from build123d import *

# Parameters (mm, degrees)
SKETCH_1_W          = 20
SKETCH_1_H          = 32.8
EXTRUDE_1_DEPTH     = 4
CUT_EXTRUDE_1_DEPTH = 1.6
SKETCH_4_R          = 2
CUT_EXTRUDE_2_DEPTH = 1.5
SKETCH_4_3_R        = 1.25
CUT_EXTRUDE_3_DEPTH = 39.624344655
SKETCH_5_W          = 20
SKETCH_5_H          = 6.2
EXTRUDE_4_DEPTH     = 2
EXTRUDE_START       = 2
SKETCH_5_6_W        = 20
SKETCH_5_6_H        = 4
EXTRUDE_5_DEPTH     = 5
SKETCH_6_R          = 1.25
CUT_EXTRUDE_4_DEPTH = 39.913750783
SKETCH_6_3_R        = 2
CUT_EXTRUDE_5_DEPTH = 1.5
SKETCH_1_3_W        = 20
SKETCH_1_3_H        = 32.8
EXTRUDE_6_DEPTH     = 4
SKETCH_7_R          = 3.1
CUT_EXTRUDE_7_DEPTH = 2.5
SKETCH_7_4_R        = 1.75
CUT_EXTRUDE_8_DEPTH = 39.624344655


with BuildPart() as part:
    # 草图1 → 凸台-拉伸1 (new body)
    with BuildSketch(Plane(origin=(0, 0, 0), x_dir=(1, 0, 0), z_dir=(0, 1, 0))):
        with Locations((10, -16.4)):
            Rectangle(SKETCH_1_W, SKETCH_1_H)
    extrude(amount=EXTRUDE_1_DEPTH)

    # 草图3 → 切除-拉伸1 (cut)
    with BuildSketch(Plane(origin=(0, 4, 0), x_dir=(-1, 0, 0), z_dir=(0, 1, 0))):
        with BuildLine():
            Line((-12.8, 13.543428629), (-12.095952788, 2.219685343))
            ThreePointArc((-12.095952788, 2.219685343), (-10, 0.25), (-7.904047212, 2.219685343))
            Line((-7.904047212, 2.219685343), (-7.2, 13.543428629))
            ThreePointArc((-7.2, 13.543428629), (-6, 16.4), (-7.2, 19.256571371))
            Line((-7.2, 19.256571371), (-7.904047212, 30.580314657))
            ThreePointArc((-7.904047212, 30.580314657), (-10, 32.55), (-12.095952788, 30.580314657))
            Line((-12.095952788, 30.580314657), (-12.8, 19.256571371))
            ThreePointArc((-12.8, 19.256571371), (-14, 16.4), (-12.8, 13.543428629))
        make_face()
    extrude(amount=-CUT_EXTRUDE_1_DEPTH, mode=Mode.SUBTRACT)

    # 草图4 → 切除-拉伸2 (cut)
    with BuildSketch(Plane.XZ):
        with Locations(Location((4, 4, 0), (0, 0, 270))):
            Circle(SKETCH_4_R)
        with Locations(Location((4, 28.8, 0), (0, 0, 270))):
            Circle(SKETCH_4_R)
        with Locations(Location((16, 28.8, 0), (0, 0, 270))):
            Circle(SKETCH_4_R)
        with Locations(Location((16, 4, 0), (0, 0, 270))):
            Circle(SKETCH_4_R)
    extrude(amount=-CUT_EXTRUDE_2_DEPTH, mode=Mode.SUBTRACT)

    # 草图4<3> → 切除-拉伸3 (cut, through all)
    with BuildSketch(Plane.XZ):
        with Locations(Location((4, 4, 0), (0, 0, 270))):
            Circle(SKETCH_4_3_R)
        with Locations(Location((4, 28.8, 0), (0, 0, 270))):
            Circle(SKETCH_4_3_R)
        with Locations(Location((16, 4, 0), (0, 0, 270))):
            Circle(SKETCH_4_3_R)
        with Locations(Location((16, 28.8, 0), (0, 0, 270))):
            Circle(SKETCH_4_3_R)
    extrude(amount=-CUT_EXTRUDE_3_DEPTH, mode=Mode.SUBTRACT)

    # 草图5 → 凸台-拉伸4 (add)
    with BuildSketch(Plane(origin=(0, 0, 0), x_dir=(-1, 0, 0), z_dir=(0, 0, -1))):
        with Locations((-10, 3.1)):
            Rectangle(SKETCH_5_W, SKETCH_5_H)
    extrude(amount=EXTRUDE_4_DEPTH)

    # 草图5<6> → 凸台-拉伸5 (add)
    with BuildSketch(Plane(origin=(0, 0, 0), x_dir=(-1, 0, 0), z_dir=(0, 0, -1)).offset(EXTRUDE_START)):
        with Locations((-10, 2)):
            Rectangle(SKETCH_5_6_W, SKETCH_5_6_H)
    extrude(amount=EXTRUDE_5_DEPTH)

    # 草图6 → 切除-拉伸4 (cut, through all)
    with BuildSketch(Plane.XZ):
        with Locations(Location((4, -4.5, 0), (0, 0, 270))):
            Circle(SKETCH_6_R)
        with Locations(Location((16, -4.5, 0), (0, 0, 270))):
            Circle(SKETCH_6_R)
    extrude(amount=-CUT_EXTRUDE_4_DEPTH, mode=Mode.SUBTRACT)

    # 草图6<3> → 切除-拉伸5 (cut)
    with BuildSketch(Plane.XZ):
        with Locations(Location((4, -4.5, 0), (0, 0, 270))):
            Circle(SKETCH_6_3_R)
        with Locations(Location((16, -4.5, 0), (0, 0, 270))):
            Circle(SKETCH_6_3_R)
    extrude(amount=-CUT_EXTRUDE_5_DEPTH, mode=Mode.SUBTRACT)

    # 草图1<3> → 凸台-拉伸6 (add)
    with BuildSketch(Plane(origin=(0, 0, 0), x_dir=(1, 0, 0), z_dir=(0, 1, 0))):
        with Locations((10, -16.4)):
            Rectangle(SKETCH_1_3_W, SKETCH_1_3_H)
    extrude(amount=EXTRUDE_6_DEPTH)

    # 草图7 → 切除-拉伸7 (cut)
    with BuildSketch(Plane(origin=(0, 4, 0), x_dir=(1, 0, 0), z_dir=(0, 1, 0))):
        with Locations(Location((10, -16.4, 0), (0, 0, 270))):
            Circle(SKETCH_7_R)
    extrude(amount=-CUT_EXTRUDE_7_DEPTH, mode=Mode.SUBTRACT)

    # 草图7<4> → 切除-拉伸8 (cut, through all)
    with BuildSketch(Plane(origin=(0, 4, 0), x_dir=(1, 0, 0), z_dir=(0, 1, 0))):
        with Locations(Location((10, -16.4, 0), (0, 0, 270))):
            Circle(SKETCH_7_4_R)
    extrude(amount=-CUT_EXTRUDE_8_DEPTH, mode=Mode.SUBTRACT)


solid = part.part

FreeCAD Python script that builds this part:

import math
import FreeCAD as App
import Part
import Sketcher

doc = App.newDocument("Part")
body = doc.addObject("PartDesign::Body", "Body")

# Sketch on XZ plane
sketch1 = doc.addObject("Sketcher::SketchObject", "Sketch")
body.addObject(sketch1)
sketch1.AttachmentSupport = (doc.XZ_Plane, [""])
sketch1.MapMode = "FlatFace"
sketch1.addGeometry([
    Part.LineSegment(App.Vector(0, 0, 0), App.Vector(0, 32.8, 0)),
    Part.LineSegment(App.Vector(0, 32.8, 0), App.Vector(20, 32.8, 0)),
    Part.LineSegment(App.Vector(20, 32.8, 0), App.Vector(20, 0, 0)),
    Part.LineSegment(App.Vector(20, 0, 0), App.Vector(0, 0, 0)),
], False)
sketch1.addConstraint([
    Sketcher.Constraint("Coincident", 0, 2, 1, 1),
    Sketcher.Constraint("Coincident", 1, 2, 2, 1),
    Sketcher.Constraint("Coincident", 2, 2, 3, 1),
    Sketcher.Constraint("Coincident", 3, 2, 0, 1),
    Sketcher.Constraint("Vertical", 0),
    Sketcher.Constraint("Horizontal", 1),
    Sketcher.Constraint("Vertical", 2),
    Sketcher.Constraint("Horizontal", 3),
    Sketcher.Constraint("Coincident", 3, 2, -1, 1),
    Sketcher.Constraint("DistanceX", 1, 1, 1, 2, 20.0),
    Sketcher.Constraint("DistanceY", 0, 1, 0, 2, 32.8),
])
pad1 = doc.addObject("PartDesign::Pad", "Pad")
body.addObject(pad1)
pad1.Profile = sketch1
pad1.Length = 4
pad1.Reversed = True

# Sketch on XZ plane
sketch2 = doc.addObject("Sketcher::SketchObject", "Sketch001")
body.addObject(sketch2)
sketch2.AttachmentSupport = (doc.XZ_Plane, [""])
sketch2.MapMode = "FlatFace"
sketch2.AttachmentOffset = App.Placement(App.Vector(0, 0, -4), App.Rotation())
sketch2.addGeometry([
    Part.LineSegment(App.Vector(12.8, 13.543429, 0), App.Vector(12.095953, 2.219685, 0)),  # 0
    Part.ArcOfCircle(Part.Circle(App.Vector(10, 2.35, 0), App.Vector(0, 0, 1), 2.1), math.radians(-176.442248), math.radians(-3.557752)),  # 1
    Part.LineSegment(App.Vector(7.904047, 2.219685, 0), App.Vector(7.2, 13.543429, 0)),  # 2
    Part.ArcOfCircle(Part.Circle(App.Vector(10, 16.4, 0), App.Vector(0, 0, 1), 4), math.radians(134.427004), math.radians(225.572996)),  # 3
    Part.LineSegment(App.Vector(7.2, 19.256571, 0), App.Vector(7.904047, 30.580315, 0)),  # 4
    Part.ArcOfCircle(Part.Circle(App.Vector(10, 30.45, 0), App.Vector(0, 0, 1), 2.1), math.radians(3.557752), math.radians(176.442248)),  # 5
    Part.LineSegment(App.Vector(12.095953, 30.580315, 0), App.Vector(12.8, 19.256571, 0)),  # 6
    Part.ArcOfCircle(Part.Circle(App.Vector(10, 16.4, 0), App.Vector(0, 0, 1), 4), math.radians(-45.572996), math.radians(45.572996)),  # 7
], False)
sketch2.addConstraint([
    Sketcher.Constraint("Tangent", 0, 2, 1, 2),
    Sketcher.Constraint("Tangent", 1, 1, 2, 1),
    Sketcher.Constraint("Coincident", 2, 2, 3, 2),
    Sketcher.Constraint("Coincident", 3, 1, 4, 1),
    Sketcher.Constraint("Tangent", 4, 2, 5, 2),
    Sketcher.Constraint("Tangent", 5, 1, 6, 1),
    Sketcher.Constraint("Coincident", 6, 2, 7, 2),
    Sketcher.Constraint("Coincident", 7, 1, 0, 1),
    Sketcher.Constraint("Coincident", 7, 3, 3, 3),
    Sketcher.Constraint("Equal", 1, 5),
    Sketcher.Constraint("Equal", 3, 7),
    Sketcher.Constraint("Parallel", 0, 4),
    Sketcher.Constraint("Parallel", 2, 6),
    Sketcher.Constraint("Horizontal", 0, 2, 1, 1),
    Sketcher.Constraint("Horizontal", 3, 1, 6, 2),
    Sketcher.Constraint("Horizontal", 2, 2, 7, 1),
    Sketcher.Constraint("Vertical", 2, 2, 3, 1),
    Sketcher.Constraint("Radius", 3, 4.0),
    Sketcher.Constraint("Radius", 1, 2.1),
    Sketcher.Constraint("DistanceX", -1, 1, 1, 3, 10.0),
    Sketcher.Constraint("DistanceY", -1, 1, 3, 3, 16.4),
    Sketcher.Constraint("DistanceX", -1, 1, 2, 2, 7.2),
    Sketcher.Constraint("DistanceY", 1, 3, 5, 3, 28.1),
])
pocket1 = doc.addObject("PartDesign::Pocket", "Pocket")
body.addObject(pocket1)
pocket1.Profile = sketch2
pocket1.Length = 1.6
pocket1.Reversed = True

# Sketch on XZ plane
sketch3 = doc.addObject("Sketcher::SketchObject", "Sketch002")
body.addObject(sketch3)
sketch3.AttachmentSupport = (doc.XZ_Plane, [""])
sketch3.MapMode = "FlatFace"
sketch3.addGeometry([
    Part.Circle(App.Vector(4, 4, 0), App.Vector(0, 0, 1), 2),
    Part.Circle(App.Vector(4, 28.8, 0), App.Vector(0, 0, 1), 2),
    Part.Circle(App.Vector(16, 28.8, 0), App.Vector(0, 0, 1), 2),
    Part.Circle(App.Vector(16, 4, 0), App.Vector(0, 0, 1), 2),
], False)
sketch3.addConstraint([
    Sketcher.Constraint("Equal", 0, 1),
    Sketcher.Constraint("Equal", 1, 2),
    Sketcher.Constraint("Equal", 2, 3),
    Sketcher.Constraint("Horizontal", 1, 3, 2, 3),
    Sketcher.Constraint("Horizontal", 0, 3, 3, 3),
    Sketcher.Constraint("Vertical", 0, 3, 1, 3),
    Sketcher.Constraint("Vertical", 2, 3, 3, 3),
    Sketcher.Constraint("Diameter", 0, 4.0),
    Sketcher.Constraint("DistanceX", -1, 1, 0, 3, 4.0),
    Sketcher.Constraint("DistanceY", -1, 1, 0, 3, 4.0),
    Sketcher.Constraint("DistanceX", -1, 1, 2, 3, 16.0),
    Sketcher.Constraint("DistanceY", -1, 1, 1, 3, 28.8),
])
pocket2 = doc.addObject("PartDesign::Pocket", "Pocket001")
body.addObject(pocket2)
pocket2.Profile = sketch3
pocket2.Length = 1.5

# Sketch on XZ plane
sketch4 = doc.addObject("Sketcher::SketchObject", "Sketch003")
body.addObject(sketch4)
sketch4.AttachmentSupport = (doc.XZ_Plane, [""])
sketch4.MapMode = "FlatFace"
sketch4.addGeometry([
    Part.Circle(App.Vector(4, 4, 0), App.Vector(0, 0, 1), 1.25),
    Part.Circle(App.Vector(4, 28.8, 0), App.Vector(0, 0, 1), 1.25),
    Part.Circle(App.Vector(16, 4, 0), App.Vector(0, 0, 1), 1.25),
    Part.Circle(App.Vector(16, 28.8, 0), App.Vector(0, 0, 1), 1.25),
], False)
sketch4.addConstraint([
    Sketcher.Constraint("Equal", 0, 1),
    Sketcher.Constraint("Equal", 1, 2),
    Sketcher.Constraint("Equal", 2, 3),
    Sketcher.Constraint("Horizontal", 0, 3, 2, 3),
    Sketcher.Constraint("Horizontal", 1, 3, 3, 3),
    Sketcher.Constraint("Vertical", 0, 3, 1, 3),
    Sketcher.Constraint("Vertical", 2, 3, 3, 3),
    Sketcher.Constraint("Diameter", 0, 2.5),
    Sketcher.Constraint("DistanceX", -1, 1, 0, 3, 4.0),
    Sketcher.Constraint("DistanceY", -1, 1, 0, 3, 4.0),
    Sketcher.Constraint("DistanceX", -1, 1, 2, 3, 16.0),
    Sketcher.Constraint("DistanceY", -1, 1, 1, 3, 28.8),
])
pocket3 = doc.addObject("PartDesign::Pocket", "Pocket002")
body.addObject(pocket3)
pocket3.Profile = sketch4
pocket3.Type = "ThroughAll"

# Sketch on XY plane
sketch5 = doc.addObject("Sketcher::SketchObject", "Sketch004")
body.addObject(sketch5)
sketch5.AttachmentSupport = (doc.XY_Plane, [""])
sketch5.MapMode = "FlatFace"
sketch5.addGeometry([
    Part.LineSegment(App.Vector(20, 6.2, 0), App.Vector(20, 0, 0)),
    Part.LineSegment(App.Vector(20, 0, 0), App.Vector(0, 0, 0)),
    Part.LineSegment(App.Vector(0, 0, 0), App.Vector(0, 6.2, 0)),
    Part.LineSegment(App.Vector(0, 6.2, 0), App.Vector(20, 6.2, 0)),
], False)
sketch5.addConstraint([
    Sketcher.Constraint("Coincident", 0, 2, 1, 1),
    Sketcher.Constraint("Coincident", 1, 2, 2, 1),
    Sketcher.Constraint("Coincident", 2, 2, 3, 1),
    Sketcher.Constraint("Coincident", 3, 2, 0, 1),
    Sketcher.Constraint("Vertical", 0),
    Sketcher.Constraint("Horizontal", 1),
    Sketcher.Constraint("Vertical", 2),
    Sketcher.Constraint("Horizontal", 3),
    Sketcher.Constraint("Coincident", 1, 2, -1, 1),
    Sketcher.Constraint("DistanceX", 1, 2, 1, 1, 20.0),
    Sketcher.Constraint("DistanceY", 0, 2, 0, 1, 6.2),
])
pad2 = doc.addObject("PartDesign::Pad", "Pad001")
body.addObject(pad2)
pad2.Profile = sketch5
pad2.Length = 2
pad2.Reversed = True

# Sketch on XY plane
sketch6 = doc.addObject("Sketcher::SketchObject", "Sketch005")
body.addObject(sketch6)
sketch6.AttachmentSupport = (doc.XY_Plane, [""])
sketch6.MapMode = "FlatFace"
sketch6.AttachmentOffset = App.Placement(App.Vector(0, 0, -2), App.Rotation())
sketch6.addGeometry([
    Part.LineSegment(App.Vector(20, 4, 0), App.Vector(20, 0, 0)),
    Part.LineSegment(App.Vector(20, 0, 0), App.Vector(0, 0, 0)),
    Part.LineSegment(App.Vector(0, 0, 0), App.Vector(0, 4, 0)),
    Part.LineSegment(App.Vector(0, 4, 0), App.Vector(20, 4, 0)),
], False)
sketch6.addConstraint([
    Sketcher.Constraint("Coincident", 0, 2, 1, 1),
    Sketcher.Constraint("Coincident", 1, 2, 2, 1),
    Sketcher.Constraint("Coincident", 2, 2, 3, 1),
    Sketcher.Constraint("Coincident", 3, 2, 0, 1),
    Sketcher.Constraint("Vertical", 0),
    Sketcher.Constraint("Horizontal", 1),
    Sketcher.Constraint("Vertical", 2),
    Sketcher.Constraint("Horizontal", 3),
    Sketcher.Constraint("Coincident", 1, 2, -1, 1),
    Sketcher.Constraint("DistanceX", 1, 2, 1, 1, 20.0),
    Sketcher.Constraint("DistanceY", 0, 2, 0, 1, 4.0),
])
pad3 = doc.addObject("PartDesign::Pad", "Pad002")
body.addObject(pad3)
pad3.Profile = sketch6
pad3.Length = 5
pad3.Reversed = True

# Sketch on XZ plane
sketch7 = doc.addObject("Sketcher::SketchObject", "Sketch006")
body.addObject(sketch7)
sketch7.AttachmentSupport = (doc.XZ_Plane, [""])
sketch7.MapMode = "FlatFace"
sketch7.addGeometry([
    Part.Circle(App.Vector(4, -4.5, 0), App.Vector(0, 0, 1), 1.25),
    Part.Circle(App.Vector(16, -4.5, 0), App.Vector(0, 0, 1), 1.25),
], False)
sketch7.addConstraint([
    Sketcher.Constraint("Equal", 0, 1),
    Sketcher.Constraint("Horizontal", 0, 3, 1, 3),
    Sketcher.Constraint("Diameter", 0, 2.5),
    Sketcher.Constraint("DistanceX", -1, 1, 0, 3, 4.0),
    Sketcher.Constraint("DistanceX", -1, 1, 1, 3, 16.0),
    Sketcher.Constraint("DistanceY", 0, 3, -1, 1, 4.5),
])
pocket4 = doc.addObject("PartDesign::Pocket", "Pocket003")
body.addObject(pocket4)
pocket4.Profile = sketch7
pocket4.Type = "ThroughAll"

# Sketch on XZ plane
sketch8 = doc.addObject("Sketcher::SketchObject", "Sketch007")
body.addObject(sketch8)
sketch8.AttachmentSupport = (doc.XZ_Plane, [""])
sketch8.MapMode = "FlatFace"
sketch8.addGeometry([
    Part.Circle(App.Vector(4, -4.5, 0), App.Vector(0, 0, 1), 2),
    Part.Circle(App.Vector(16, -4.5, 0), App.Vector(0, 0, 1), 2),
], False)
sketch8.addConstraint([
    Sketcher.Constraint("Equal", 0, 1),
    Sketcher.Constraint("Horizontal", 0, 3, 1, 3),
    Sketcher.Constraint("Diameter", 0, 4.0),
    Sketcher.Constraint("DistanceX", -1, 1, 0, 3, 4.0),
    Sketcher.Constraint("DistanceX", -1, 1, 1, 3, 16.0),
    Sketcher.Constraint("DistanceY", 0, 3, -1, 1, 4.5),
])
pocket5 = doc.addObject("PartDesign::Pocket", "Pocket004")
body.addObject(pocket5)
pocket5.Profile = sketch8
pocket5.Length = 1.5

# Sketch on XZ plane
sketch9 = doc.addObject("Sketcher::SketchObject", "Sketch008")
body.addObject(sketch9)
sketch9.AttachmentSupport = (doc.XZ_Plane, [""])
sketch9.MapMode = "FlatFace"
sketch9.addGeometry([
    Part.LineSegment(App.Vector(0, 0, 0), App.Vector(0, 32.8, 0)),
    Part.LineSegment(App.Vector(0, 32.8, 0), App.Vector(20, 32.8, 0)),
    Part.LineSegment(App.Vector(20, 32.8, 0), App.Vector(20, 0, 0)),
    Part.LineSegment(App.Vector(20, 0, 0), App.Vector(0, 0, 0)),
], False)
sketch9.addConstraint([
    Sketcher.Constraint("Coincident", 0, 2, 1, 1),
    Sketcher.Constraint("Coincident", 1, 2, 2, 1),
    Sketcher.Constraint("Coincident", 2, 2, 3, 1),
    Sketcher.Constraint("Coincident", 3, 2, 0, 1),
    Sketcher.Constraint("Vertical", 0),
    Sketcher.Constraint("Horizontal", 1),
    Sketcher.Constraint("Vertical", 2),
    Sketcher.Constraint("Horizontal", 3),
    Sketcher.Constraint("Coincident", 3, 2, -1, 1),
    Sketcher.Constraint("DistanceX", 1, 1, 1, 2, 20.0),
    Sketcher.Constraint("DistanceY", 0, 1, 0, 2, 32.8),
])
pad4 = doc.addObject("PartDesign::Pad", "Pad003")
body.addObject(pad4)
pad4.Profile = sketch9
pad4.Length = 4
pad4.Reversed = True

# Sketch on XZ plane
sketch10 = doc.addObject("Sketcher::SketchObject", "Sketch009")
body.addObject(sketch10)
sketch10.AttachmentSupport = (doc.XZ_Plane, [""])
sketch10.MapMode = "FlatFace"
sketch10.AttachmentOffset = App.Placement(App.Vector(0, 0, -4), App.Rotation())
sketch10.addGeometry(Part.Circle(App.Vector(10, 16.4, 0), App.Vector(0, 0, 1), 3.1), False)
sketch10.addConstraint([
    Sketcher.Constraint("Diameter", 0, 6.2),
    Sketcher.Constraint("DistanceX", -1, 1, 0, 3, 10.0),
    Sketcher.Constraint("DistanceY", -1, 1, 0, 3, 16.4),
])
pocket6 = doc.addObject("PartDesign::Pocket", "Pocket005")
body.addObject(pocket6)
pocket6.Profile = sketch10
pocket6.Length = 2.5
pocket6.Reversed = True

# Sketch on XZ plane
sketch11 = doc.addObject("Sketcher::SketchObject", "Sketch010")
body.addObject(sketch11)
sketch11.AttachmentSupport = (doc.XZ_Plane, [""])
sketch11.MapMode = "FlatFace"
sketch11.AttachmentOffset = App.Placement(App.Vector(0, 0, -4), App.Rotation())
sketch11.addGeometry(Part.Circle(App.Vector(10, 16.4, 0), App.Vector(0, 0, 1), 1.75), False)
sketch11.addConstraint([
    Sketcher.Constraint("Diameter", 0, 3.5),
    Sketcher.Constraint("DistanceX", -1, 1, 0, 3, 10.0),
    Sketcher.Constraint("DistanceY", -1, 1, 0, 3, 16.4),
])
pocket7 = doc.addObject("PartDesign::Pocket", "Pocket006")
body.addObject(pocket7)
pocket7.Profile = sketch11
pocket7.Type = "ThroughAll"
pocket7.Reversed = True

doc.recompute()
